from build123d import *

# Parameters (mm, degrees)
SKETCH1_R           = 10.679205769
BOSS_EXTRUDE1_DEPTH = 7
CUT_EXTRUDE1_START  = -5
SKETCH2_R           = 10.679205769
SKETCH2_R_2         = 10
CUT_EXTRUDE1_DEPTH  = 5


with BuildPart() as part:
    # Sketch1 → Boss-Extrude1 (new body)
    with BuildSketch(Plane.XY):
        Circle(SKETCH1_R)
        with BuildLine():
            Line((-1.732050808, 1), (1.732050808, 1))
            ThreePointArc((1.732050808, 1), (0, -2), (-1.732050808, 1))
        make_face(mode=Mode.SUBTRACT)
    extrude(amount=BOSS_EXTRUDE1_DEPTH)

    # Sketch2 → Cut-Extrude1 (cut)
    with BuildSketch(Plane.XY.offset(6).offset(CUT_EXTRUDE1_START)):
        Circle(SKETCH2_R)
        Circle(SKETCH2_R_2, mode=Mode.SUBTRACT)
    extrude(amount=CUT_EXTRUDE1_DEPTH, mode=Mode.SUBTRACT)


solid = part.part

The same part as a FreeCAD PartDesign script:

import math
import FreeCAD as App
import Part
import Sketcher
from FreeCAD import Vector

doc = App.newDocument("Part")
body = doc.addObject("PartDesign::Body", "Body")

# Sketch on XY plane
sketch1 = body.newObject("Sketcher::SketchObject", "Sketch")
sketch1.AttachmentSupport = (doc.getObject("XY_Plane"), [""])
sketch1.MapMode = "FlatFace"
sketch1.addGeometry(Part.Circle(Vector(0, 0, 0), Vector(0, 0, 1), 10.7), False)
sketch1.addGeometry(Part.ArcOfCircle(Part.Circle(Vector(0, 0, 0), Vector(0, 0, 1), 2), math.radians(150), math.radians(390)), False)
sketch1.addGeometry(Part.LineSegment(Vector(-1.7, 1, 0), Vector(1.7, 1, 0)), False)
sketch1.addConstraint(Sketcher.Constraint("Coincident", 1, 1, 2, 1))
sketch1.addConstraint(Sketcher.Constraint("Coincident", 2, 2, 1, 2))
sketch1.addConstraint(Sketcher.Constraint("Horizontal", 2))
sketch1.addConstraint(Sketcher.Constraint("Coincident", 0, 3, -1, 1))
sketch1.addConstraint(Sketcher.Constraint("Coincident", 1, 3, -1, 1))
sketch1.addConstraint(Sketcher.Constraint("Radius", 1, 2.0))
sketch1.addConstraint(Sketcher.Constraint("DistanceY", -1, 1, 1, 1, 1.0))
sketch1.addConstraint(Sketcher.Constraint("Diameter", 0, 21.358412))
pad1 = body.newObject("PartDesign::Pad", "Pad")
pad1.Profile = sketch1
pad1.Length = 7

# Sketch on XY plane
sketch2 = body.newObject("Sketcher::SketchObject", "Sketch001")
sketch2.AttachmentSupport = (doc.getObject("XY_Plane"), [""])
sketch2.MapMode = "FlatFace"
sketch2.AttachmentOffset = App.Placement(Vector(0, 0, 1), App.Rotation())
sketch2.addGeometry(Part.Circle(Vector(0, 0, 0), Vector(0, 0, 1), 11), False)
sketch2.addGeometry(Part.Circle(Vector(0, 0, 0), Vector(0, 0, 1), 10), False)
sketch2.addConstraint(Sketcher.Constraint("Coincident", 0, 3, -1, 1))
sketch2.addConstraint(Sketcher.Constraint("Coincident", 1, 3, -1, 1))
sketch2.addConstraint(Sketcher.Constraint("Diameter", 1, 20.0))
sketch2.addConstraint(Sketcher.Constraint("Diameter", 0, 21.358412))
pocket1 = body.newObject("PartDesign::Pocket", "Pocket")
pocket1.Profile = sketch2
pocket1.Length = 5
pocket1.Reversed = True

doc.recompute()
